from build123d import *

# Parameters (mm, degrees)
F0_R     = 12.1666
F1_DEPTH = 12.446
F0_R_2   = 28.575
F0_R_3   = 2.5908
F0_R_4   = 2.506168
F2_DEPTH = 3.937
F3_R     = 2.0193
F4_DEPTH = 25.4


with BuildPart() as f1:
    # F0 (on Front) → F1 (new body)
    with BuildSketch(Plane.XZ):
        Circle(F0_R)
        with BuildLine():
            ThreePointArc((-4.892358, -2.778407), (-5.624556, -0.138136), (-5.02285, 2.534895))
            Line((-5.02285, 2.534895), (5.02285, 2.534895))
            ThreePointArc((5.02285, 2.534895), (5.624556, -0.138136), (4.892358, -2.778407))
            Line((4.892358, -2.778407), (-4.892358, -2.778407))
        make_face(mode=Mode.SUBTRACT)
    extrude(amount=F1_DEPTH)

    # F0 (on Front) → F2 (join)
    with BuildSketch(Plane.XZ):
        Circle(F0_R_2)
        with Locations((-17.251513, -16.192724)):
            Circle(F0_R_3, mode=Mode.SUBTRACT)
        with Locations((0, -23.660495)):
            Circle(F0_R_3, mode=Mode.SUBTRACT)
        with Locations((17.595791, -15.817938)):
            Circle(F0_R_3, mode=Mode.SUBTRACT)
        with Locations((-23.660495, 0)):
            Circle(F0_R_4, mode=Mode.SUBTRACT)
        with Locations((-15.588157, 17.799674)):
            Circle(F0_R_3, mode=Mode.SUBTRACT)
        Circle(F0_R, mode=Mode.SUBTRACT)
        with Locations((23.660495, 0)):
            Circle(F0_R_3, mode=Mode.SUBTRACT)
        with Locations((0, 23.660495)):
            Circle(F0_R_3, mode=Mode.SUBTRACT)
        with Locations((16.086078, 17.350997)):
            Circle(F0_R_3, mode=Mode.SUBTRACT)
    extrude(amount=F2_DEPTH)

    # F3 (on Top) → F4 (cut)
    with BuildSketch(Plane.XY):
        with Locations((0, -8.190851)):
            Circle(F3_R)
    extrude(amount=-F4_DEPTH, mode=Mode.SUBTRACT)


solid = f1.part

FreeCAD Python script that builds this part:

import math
import FreeCAD as App
import Part
import Sketcher
from FreeCAD import Vector
Q = App.Units.Quantity

doc = App.newDocument("Part")
body = doc.addObject("PartDesign::Body", "Body")

# Sketch on XZ plane
sketch1 = doc.addObject("Sketcher::SketchObject", "Sketch")
body.addObject(sketch1)
sketch1.AttachmentSupport = (doc.XZ_Plane, [""])
sketch1.MapMode = "FlatFace"
sketch1.addGeometry(Part.Circle(Vector(0, 0, 0), Vector(0, 0, 1), 12), False)
sketch1.addGeometry(Part.LineSegment(Vector(5, -3, 0), Vector(-5, -3, 0)), False)
sketch1.addGeometry(Part.ArcOfCircle(Part.Circle(Vector(0, 0, 0), Vector(0, 0, 1), 6), math.radians(153), math.radians(210)), False)
sketch1.addGeometry(Part.LineSegment(Vector(-5, 3, 0), Vector(5, 3, 0)), False)
sketch1.addGeometry(Part.ArcOfCircle(Part.Circle(Vector(0, 0, 0), Vector(0, 0, 1), 6), math.radians(-30), math.radians(27)), False)
sketch1.addConstraint(Sketcher.Constraint("Coincident", 1, 2, 2, 2))
sketch1.addConstraint(Sketcher.Constraint("Coincident", 2, 1, 3, 1))
sketch1.addConstraint(Sketcher.Constraint("Coincident", 3, 2, 4, 2))
sketch1.addConstraint(Sketcher.Constraint("Coincident", 4, 1, 1, 1))
sketch1.addConstraint(Sketcher.Constraint("Horizontal", 1))
sketch1.addConstraint(Sketcher.Constraint("Horizontal", 3))
sketch1.addConstraint(Sketcher.Constraint("Coincident", 0, 3, -1, 1))
sketch1.addConstraint(Sketcher.Constraint("Coincident", 2, 3, -1, 1))
sketch1.addConstraint(Sketcher.Constraint("Coincident", 4, 3, -1, 1))
sketch1.addConstraint(Sketcher.Constraint("Equal", 2, 4))
sketch1.addConstraint(Sketcher.Constraint("Diameter", 0, Q("0.958 in")))
sketch1.addConstraint(Sketcher.Constraint("DistanceX", 3, 1, 3, 2, Q("0.3955 in")))
sketch1.addConstraint(Sketcher.Constraint("Radius", 2, 5.626253))
sketch1.addConstraint(Sketcher.Constraint("DistanceY", 1, 2, 2, 1, 5.313302))
pad1 = doc.addObject("PartDesign::Pad", "Pad")
body.addObject(pad1)
pad1.Profile = sketch1
pad1.Length = Q("0.49 in")

# Sketch on XZ plane
sketch2 = doc.addObject("Sketcher::SketchObject", "Sketch001")
body.addObject(sketch2)
sketch2.AttachmentSupport = (doc.XZ_Plane, [""])
sketch2.MapMode = "FlatFace"
sketch2.addGeometry(Part.Circle(Vector(0, 0, 0), Vector(0, 0, 1), 28.6), False)
sketch2.addGeometry(Part.Circle(Vector(-17.3, -16.2, 0), Vector(0, 0, 1), 2.6), False)
sketch2.addGeometry(Part.Circle(Vector(0, -23.7, 0), Vector(0, 0, 1), 2.6), False)
sketch2.addGeometry(Part.Circle(Vector(17.6, -15.8, 0), Vector(0, 0, 1), 2.6), False)
sketch2.addGeometry(Part.Circle(Vector(-23.7, 0, 0), Vector(0, 0, 1), 2.5), False)
sketch2.addGeometry(Part.Circle(Vector(0, 0, 0), Vector(0, 0, 1), 12.2), False)
sketch2.addGeometry(Part.Circle(Vector(-15.6, 17.8, 0), Vector(0, 0, 1), 2.6), False)
sketch2.addGeometry(Part.Circle(Vector(0, 23.7, 0), Vector(0, 0, 1), 2.6), False)
sketch2.addGeometry(Part.Circle(Vector(23.7, 0, 0), Vector(0, 0, 1), 2.6), False)
sketch2.addGeometry(Part.Circle(Vector(16.1, 17.4, 0), Vector(0, 0, 1), 2.6), False)
sketch2.addConstraint(Sketcher.Constraint("Coincident", 0, 3, -1, 1))
sketch2.addConstraint(Sketcher.Constraint("Coincident", 5, 3, -1, 1))
sketch2.addConstraint(Sketcher.Constraint("Equal", 1, 2))
sketch2.addConstraint(Sketcher.Constraint("Equal", 2, 3))
sketch2.addConstraint(Sketcher.Constraint("Equal", 3, 6))
sketch2.addConstraint(Sketcher.Constraint("Equal", 6, 7))
sketch2.addConstraint(Sketcher.Constraint("Equal", 7, 8))
sketch2.addConstraint(Sketcher.Constraint("Equal", 8, 9))
sketch2.addConstraint(Sketcher.Constraint("Symmetric", 2, 3, 7, 3, -1, 1))
sketch2.addConstraint(Sketcher.Constraint("Symmetric", 4, 3, 8, 3, -1, 1))
sketch2.addConstraint(Sketcher.Constraint("PointOnObject", 2, 3, -2))
sketch2.addConstraint(Sketcher.Constraint("PointOnObject", 4, 3, -1))
sketch2.addConstraint(Sketcher.Constraint("Diameter", 0, Q("2.25 in")))
sketch2.addConstraint(Sketcher.Constraint("Diameter", 1, Q("0.204 in")))
sketch2.addConstraint(Sketcher.Constraint("Diameter", 5, Q("0.958 in")))
sketch2.addConstraint(Sketcher.Constraint("Diameter", 4, 5.012336))
sketch2.addConstraint(Sketcher.Constraint("DistanceY", 9, 3, 7, 3, 6.309498))
sketch2.addConstraint(Sketcher.Constraint("DistanceX", -1, 1, 3, 3, 17.595791))
sketch2.addConstraint(Sketcher.Constraint("DistanceX", -1, 1, 9, 3, 16.086078))
sketch2.addConstraint(Sketcher.Constraint("DistanceY", 2, 3, 1, 3, 7.467771))
sketch2.addConstraint(Sketcher.Constraint("DistanceY", 2, 3, 6, 3, 41.460169))
sketch2.addConstraint(Sketcher.Constraint("DistanceY", 6, 3, 7, 3, 5.860821))
sketch2.addConstraint(Sketcher.Constraint("DistanceX", 1, 3, -1, 1, 17.251513))
sketch2.addConstraint(Sketcher.Constraint("DistanceY", 3, 3, -1, 1, 15.817938))
sketch2.addConstraint(Sketcher.Constraint("DistanceX", 4, 3, -1, 1, 23.660495))
sketch2.addConstraint(Sketcher.Constraint("DistanceX", 6, 3, -1, 1, 15.588157))
pad2 = doc.addObject("PartDesign::Pad", "Pad001")
body.addObject(pad2)
pad2.Profile = sketch2
pad2.Length = Q("0.155 in")

# Sketch on XY plane
sketch3 = doc.addObject("Sketcher::SketchObject", "Sketch002")
body.addObject(sketch3)
sketch3.AttachmentSupport = (doc.XY_Plane, [""])
sketch3.MapMode = "FlatFace"
sketch3.addGeometry(Part.Circle(Vector(0, -8.2, 0), Vector(0, 0, 1), 2), False)
sketch3.addConstraint(Sketcher.Constraint("PointOnObject", 0, 3, -2))
sketch3.addConstraint(Sketcher.Constraint("Diameter", 0, Q("0.159 in")))
sketch3.addConstraint(Sketcher.Constraint("DistanceY", 0, 3, -1, 1, 8.190851))
pocket1 = doc.addObject("PartDesign::Pocket", "Pocket")
body.addObject(pocket1)
pocket1.Profile = sketch3
pocket1.Length = Q("1 in")

doc.recompute()
